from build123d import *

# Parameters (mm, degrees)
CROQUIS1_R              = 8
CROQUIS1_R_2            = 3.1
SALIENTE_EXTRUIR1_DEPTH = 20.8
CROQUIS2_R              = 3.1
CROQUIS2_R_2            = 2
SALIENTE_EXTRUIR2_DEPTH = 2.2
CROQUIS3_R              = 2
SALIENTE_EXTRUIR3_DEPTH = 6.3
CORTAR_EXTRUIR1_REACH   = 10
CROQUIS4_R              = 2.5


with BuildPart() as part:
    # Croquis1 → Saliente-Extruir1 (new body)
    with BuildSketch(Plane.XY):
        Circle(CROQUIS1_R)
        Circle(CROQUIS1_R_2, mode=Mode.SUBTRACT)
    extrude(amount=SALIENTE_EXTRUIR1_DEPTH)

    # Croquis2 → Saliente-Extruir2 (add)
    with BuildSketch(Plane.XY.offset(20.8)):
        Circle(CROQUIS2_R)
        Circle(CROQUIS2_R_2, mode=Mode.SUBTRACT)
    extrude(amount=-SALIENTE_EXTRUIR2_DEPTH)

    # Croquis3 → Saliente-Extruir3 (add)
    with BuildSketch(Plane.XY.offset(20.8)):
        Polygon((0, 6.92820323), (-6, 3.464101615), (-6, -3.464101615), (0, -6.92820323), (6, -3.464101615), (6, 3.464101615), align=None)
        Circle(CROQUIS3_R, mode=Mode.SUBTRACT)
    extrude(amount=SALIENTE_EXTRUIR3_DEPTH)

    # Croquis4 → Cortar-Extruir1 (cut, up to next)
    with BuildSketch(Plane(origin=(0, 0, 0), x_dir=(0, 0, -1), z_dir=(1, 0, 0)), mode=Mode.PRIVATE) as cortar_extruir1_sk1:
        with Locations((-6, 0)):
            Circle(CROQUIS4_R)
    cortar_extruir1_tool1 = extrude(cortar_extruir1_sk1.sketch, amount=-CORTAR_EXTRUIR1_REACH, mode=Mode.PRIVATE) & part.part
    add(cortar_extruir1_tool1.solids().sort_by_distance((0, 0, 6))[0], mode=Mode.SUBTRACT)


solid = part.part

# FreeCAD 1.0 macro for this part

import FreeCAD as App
import Part
import Sketcher
from FreeCAD import Vector
Q = App.Units.Quantity

doc = App.newDocument("Part")
body = doc.addObject("PartDesign::Body", "Body")

# Sketch on XY plane
sketch1 = body.newObject("Sketcher::SketchObject", "Sketch")
sketch1.AttachmentSupport = (doc.getObject("XY_Plane"), [""])
sketch1.MapMode = "FlatFace"
sketch1.addGeometry([
    Part.Circle(Vector(0, 0, 0), Vector(0, 0, 1), 8),
    Part.Circle(Vector(0, 0, 0), Vector(0, 0, 1), 3.1),
], False)
sketch1.addConstraint([
    Sketcher.Constraint("Coincident", 0, 3, -1, 1),
    Sketcher.Constraint("Coincident", 1, 3, -1, 1),
    Sketcher.Constraint("Diameter", 0, Q("16 mm")),
    Sketcher.Constraint("Diameter", 1, Q("6.2 mm")),
])
pad1 = body.newObject("PartDesign::Pad", "Pad")
pad1.Profile = sketch1
pad1.Length = 20.8

# Sketch on XY plane
sketch2 = body.newObject("Sketcher::SketchObject", "Sketch001")
sketch2.AttachmentSupport = (doc.getObject("XY_Plane"), [""])
sketch2.MapMode = "FlatFace"
sketch2.AttachmentOffset = App.Placement(Vector(0, 0, 20.8), App.Rotation())
sketch2.addGeometry([
    Part.Circle(Vector(0, 0, 0), Vector(0, 0, 1), 3.1),
    Part.Circle(Vector(0, 0, 0), Vector(0, 0, 1), 2),
], False)
sketch2.addConstraint([
    Sketcher.Constraint("Coincident", 0, 3, -1, 1),
    Sketcher.Constraint("Coincident", 1, 3, -1, 1),
    Sketcher.Constraint("Diameter", 1, Q("4 mm")),
    Sketcher.Constraint("Diameter", 0, Q("6.2 mm")),
])
pad2 = body.newObject("PartDesign::Pad", "Pad001")
pad2.Profile = sketch2
pad2.Length = 2.2
pad2.Reversed = True

# Sketch on XY plane
sketch3 = body.newObject("Sketcher::SketchObject", "Sketch002")
sketch3.AttachmentSupport = (doc.getObject("XY_Plane"), [""])
sketch3.MapMode = "FlatFace"
sketch3.AttachmentOffset = App.Placement(Vector(0, 0, 20.8), App.Rotation())
sketch3.addGeometry([
    Part.LineSegment(Vector(0, 6.9, 0), Vector(-6, 3.5, 0)),  # 0
    Part.LineSegment(Vector(-6, 3.5, 0), Vector(-6, -3.5, 0)),  # 1
    Part.LineSegment(Vector(-6, -3.5, 0), Vector(0, -6.9, 0)),  # 2
    Part.LineSegment(Vector(0, -6.9, 0), Vector(6, -3.5, 0)),  # 3
    Part.LineSegment(Vector(6, -3.5, 0), Vector(6, 3.5, 0)),  # 4
    Part.LineSegment(Vector(6, 3.5, 0), Vector(0, 6.9, 0)),  # 5
    Part.Circle(Vector(0, 0, 0), Vector(0, 0, 1), 2),  # 6
], False)
sketch3.addConstraint([
    Sketcher.Constraint("Coincident", 0, 2, 1, 1),
    Sketcher.Constraint("Coincident", 1, 2, 2, 1),
    Sketcher.Constraint("Coincident", 2, 2, 3, 1),
    Sketcher.Constraint("Coincident", 3, 2, 4, 1),
    Sketcher.Constraint("Coincident", 4, 2, 5, 1),
    Sketcher.Constraint("Coincident", 5, 2, 0, 1),
    Sketcher.Constraint("Vertical", 1),
    Sketcher.Constraint("Vertical", 4),
    Sketcher.Constraint("Coincident", 6, 3, -1, 1),
    Sketcher.Constraint("Symmetric", 0, 2, 3, 2, -1, 1),
    Sketcher.Constraint("Symmetric", 2, 2, 5, 2, -1, 1),
    Sketcher.Constraint("PointOnObject", 2, 2, -2),
    Sketcher.Constraint("Parallel", 2, 5),
    Sketcher.Constraint("Horizontal", 1, 2, 3, 2),
    Sketcher.Constraint("Diameter", 6, Q("4 mm")),
    Sketcher.Constraint("Angle", 0, Q("-150 deg")),
    Sketcher.Constraint("DistanceX", 0, 2, -1, 1, Q("6 mm")),
    Sketcher.Constraint("DistanceY", -1, 1, 0, 2, Q("3.464102 mm")),
])
pad3 = body.newObject("PartDesign::Pad", "Pad002")
pad3.Profile = sketch3
pad3.Length = 6.3

# Sketch on YZ plane
sketch4 = body.newObject("Sketcher::SketchObject", "Sketch003")
sketch4.AttachmentSupport = (doc.getObject("YZ_Plane"), [""])
sketch4.MapMode = "FlatFace"
sketch4.addGeometry(Part.Circle(Vector(0, 6, 0), Vector(0, 0, 1), 2.5), False)
sketch4.addConstraint([
    Sketcher.Constraint("PointOnObject", 0, 3, -2),
    Sketcher.Constraint("Diameter", 0, Q("5 mm")),
    Sketcher.Constraint("DistanceY", -1, 1, 0, 3, Q("6 mm")),
])
pocket1 = body.newObject("PartDesign::Pocket", "Pocket")
pocket1.Profile = sketch4
pocket1.Length = 8

doc.recompute()
